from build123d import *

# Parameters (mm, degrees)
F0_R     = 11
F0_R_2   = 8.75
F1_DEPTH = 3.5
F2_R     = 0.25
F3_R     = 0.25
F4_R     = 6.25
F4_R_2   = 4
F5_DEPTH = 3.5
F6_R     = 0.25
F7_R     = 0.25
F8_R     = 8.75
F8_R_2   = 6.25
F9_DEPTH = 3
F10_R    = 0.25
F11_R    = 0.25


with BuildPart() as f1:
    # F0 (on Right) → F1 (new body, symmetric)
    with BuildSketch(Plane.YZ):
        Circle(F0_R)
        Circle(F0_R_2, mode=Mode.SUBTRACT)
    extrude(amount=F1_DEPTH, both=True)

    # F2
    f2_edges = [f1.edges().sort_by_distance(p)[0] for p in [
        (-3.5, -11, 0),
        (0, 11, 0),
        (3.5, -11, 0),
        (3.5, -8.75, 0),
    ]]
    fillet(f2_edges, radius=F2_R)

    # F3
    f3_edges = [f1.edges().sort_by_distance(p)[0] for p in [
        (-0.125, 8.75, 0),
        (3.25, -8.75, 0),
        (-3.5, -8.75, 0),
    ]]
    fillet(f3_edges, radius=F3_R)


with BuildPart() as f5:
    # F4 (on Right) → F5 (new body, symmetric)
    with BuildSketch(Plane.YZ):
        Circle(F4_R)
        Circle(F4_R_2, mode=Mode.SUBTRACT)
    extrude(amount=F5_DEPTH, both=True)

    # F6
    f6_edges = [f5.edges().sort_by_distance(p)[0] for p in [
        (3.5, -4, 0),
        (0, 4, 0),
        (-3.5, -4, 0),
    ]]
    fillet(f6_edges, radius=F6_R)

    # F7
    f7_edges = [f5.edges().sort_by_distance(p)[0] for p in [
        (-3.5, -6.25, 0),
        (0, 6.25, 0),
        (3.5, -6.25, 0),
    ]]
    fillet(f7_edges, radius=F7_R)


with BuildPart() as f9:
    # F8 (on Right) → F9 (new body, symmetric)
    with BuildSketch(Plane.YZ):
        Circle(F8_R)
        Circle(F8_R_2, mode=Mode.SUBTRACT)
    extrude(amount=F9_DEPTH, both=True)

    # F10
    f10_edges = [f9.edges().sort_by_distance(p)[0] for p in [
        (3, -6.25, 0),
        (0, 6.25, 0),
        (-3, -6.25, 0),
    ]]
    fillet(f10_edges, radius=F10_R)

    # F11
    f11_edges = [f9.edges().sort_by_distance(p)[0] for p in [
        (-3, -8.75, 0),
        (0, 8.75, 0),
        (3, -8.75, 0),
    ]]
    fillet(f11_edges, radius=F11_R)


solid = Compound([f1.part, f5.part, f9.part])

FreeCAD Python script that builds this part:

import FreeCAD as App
import Part
import Sketcher
from FreeCAD import Vector
Q = App.Units.Quantity


def edges_at(feature, points):
    """Names of the edges that pass closest to the given points."""
    edges = feature.Shape.Edges
    near = lambda p: min(range(len(edges)), key=lambda i: edges[i].distToShape(Part.Vertex(*p))[0])
    return sorted({f"Edge{near(p) + 1}" for p in points})

doc = App.newDocument("Part")
params = doc.addObject("Spreadsheet::Sheet", "Params")
for row, (alias, value) in enumerate([
    ("sketch1_diameter", "22 mm"),
    ("sketch1_diameter2", "17.5 mm"),
    ("pad1_length", "7 mm"),
    ("fillet_radius", "0.25 mm"),
    ("fillet2_radius", "0.25 mm"),
    ("sketch2_diameter", "8 mm"),
    ("sketch2_diameter2", "12.5 mm"),
    ("pad2_length", "7 mm"),
    ("fillet3_radius", "0.25 mm"),
    ("fillet4_radius", "0.25 mm"),
    ("sketch3_diameter", "17.5 mm"),
    ("sketch3_diameter2", "12.5 mm"),
    ("pad3_length", "6 mm"),
    ("fillet5_radius", "0.25 mm"),
    ("fillet6_radius", "0.25 mm"),
], start=1):
    params.set(f"A{row}", alias)
    params.set(f"B{row}", "=" + value)
    params.setAlias(f"B{row}", alias)

body = doc.addObject("PartDesign::Body", "Body")

# Sketch on YZ plane
sketch1 = body.newObject("Sketcher::SketchObject", "Sketch")
sketch1.AttachmentSupport = (doc.getObject("YZ_Plane"), [""])
sketch1.MapMode = "FlatFace"
sketch1.addGeometry(Part.Circle(Vector(0, 0, 0), Vector(0, 0, 1), 11), False)
sketch1.addGeometry(Part.Circle(Vector(0, 0, 0), Vector(0, 0, 1), 8.75), False)
sketch1.addConstraint(Sketcher.Constraint("Coincident", 0, 3, -1, 1))
sketch1.addConstraint(Sketcher.Constraint("Coincident", 1, 3, -1, 1))
sketch1.addConstraint(Sketcher.Constraint("Diameter", 0, Q("22 mm")))
sketch1.addConstraint(Sketcher.Constraint("Diameter", 1, Q("17.5 mm")))
sketch1.setExpression("Constraints[2]", "Params.sketch1_diameter")
sketch1.setExpression("Constraints[3]", "Params.sketch1_diameter2")
pad1 = body.newObject("PartDesign::Pad", "Pad")
pad1.Profile = sketch1
pad1.setExpression("Length", "Params.pad1_length")
pad1.Midplane = True
doc.recompute()

fillet = body.newObject("PartDesign::Fillet", "Fillet")
fillet.Base = (pad1, edges_at(pad1, [
    (-3.5, -11, 0),
    (0, 11, 0),
    (3.5, -11, 0),
    (3.5, -8.75, 0),
]))
fillet.setExpression("Radius", "Params.fillet_radius")
doc.recompute()

fillet2 = body.newObject("PartDesign::Fillet", "Fillet001")
fillet2.Base = (fillet, edges_at(fillet, [(-0.125, 8.75, 0), (3.25, -8.75, 0), (-3.5, -8.75, 0)]))
fillet2.setExpression("Radius", "Params.fillet2_radius")
body2 = doc.addObject("PartDesign::Body", "Body001")

# Sketch on YZ plane
sketch2 = body2.newObject("Sketcher::SketchObject", "Sketch001")
sketch2.AttachmentSupport = (doc.getObject("YZ_Plane001"), [""])
sketch2.MapMode = "FlatFace"
sketch2.addGeometry(Part.Circle(Vector(0, 0, 0), Vector(0, 0, 1), 6.25), False)
sketch2.addGeometry(Part.Circle(Vector(0, 0, 0), Vector(0, 0, 1), 4), False)
sketch2.addConstraint(Sketcher.Constraint("Coincident", 0, 3, -1, 1))
sketch2.addConstraint(Sketcher.Constraint("Coincident", 1, 3, -1, 1))
sketch2.addConstraint(Sketcher.Constraint("Diameter", 1, Q("8 mm")))
sketch2.addConstraint(Sketcher.Constraint("Diameter", 0, Q("12.5 mm")))
sketch2.setExpression("Constraints[2]", "Params.sketch2_diameter")
sketch2.setExpression("Constraints[3]", "Params.sketch2_diameter2")
pad2 = body2.newObject("PartDesign::Pad", "Pad001")
pad2.Profile = sketch2
pad2.setExpression("Length", "Params.pad2_length")
pad2.Midplane = True
doc.recompute()

fillet3 = body2.newObject("PartDesign::Fillet", "Fillet002")
fillet3.Base = (pad2, edges_at(pad2, [(3.5, -4, 0), (0, 4, 0), (-3.5, -4, 0)]))
fillet3.setExpression("Radius", "Params.fillet3_radius")
doc.recompute()

fillet4 = body2.newObject("PartDesign::Fillet", "Fillet003")
fillet4.Base = (fillet3, edges_at(fillet3, [(-3.5, -6.25, 0), (0, 6.25, 0), (3.5, -6.25, 0)]))
fillet4.setExpression("Radius", "Params.fillet4_radius")
body3 = doc.addObject("PartDesign::Body", "Body002")

# Sketch on YZ plane
sketch3 = body3.newObject("Sketcher::SketchObject", "Sketch002")
sketch3.AttachmentSupport = (doc.getObject("YZ_Plane002"), [""])
sketch3.MapMode = "FlatFace"
sketch3.addGeometry(Part.Circle(Vector(0, 0, 0), Vector(0, 0, 1), 8.75), False)
sketch3.addGeometry(Part.Circle(Vector(0, 0, 0), Vector(0, 0, 1), 6.25), False)
sketch3.addConstraint(Sketcher.Constraint("Coincident", 0, 3, -1, 1))
sketch3.addConstraint(Sketcher.Constraint("Coincident", 1, 3, -1, 1))
sketch3.addConstraint(Sketcher.Constraint("Diameter", 0, Q("17.5 mm")))
sketch3.addConstraint(Sketcher.Constraint("Diameter", 1, Q("12.5 mm")))
sketch3.setExpression("Constraints[2]", "Params.sketch3_diameter")
sketch3.setExpression("Constraints[3]", "Params.sketch3_diameter2")
pad3 = body3.newObject("PartDesign::Pad", "Pad002")
pad3.Profile = sketch3
pad3.setExpression("Length", "Params.pad3_length")
pad3.Midplane = True
doc.recompute()

fillet5 = body3.newObject("PartDesign::Fillet", "Fillet004")
fillet5.Base = (pad3, edges_at(pad3, [(3, -6.25, 0), (0, 6.25, 0), (-3, -6.25, 0)]))
fillet5.setExpression("Radius", "Params.fillet5_radius")
doc.recompute()

fillet6 = body3.newObject("PartDesign::Fillet", "Fillet005")
fillet6.Base = (fillet5, edges_at(fillet5, [(-3, -8.75, 0), (0, 8.75, 0), (3, -8.75, 0)]))
fillet6.setExpression("Radius", "Params.fillet6_radius")

doc.recompute()
